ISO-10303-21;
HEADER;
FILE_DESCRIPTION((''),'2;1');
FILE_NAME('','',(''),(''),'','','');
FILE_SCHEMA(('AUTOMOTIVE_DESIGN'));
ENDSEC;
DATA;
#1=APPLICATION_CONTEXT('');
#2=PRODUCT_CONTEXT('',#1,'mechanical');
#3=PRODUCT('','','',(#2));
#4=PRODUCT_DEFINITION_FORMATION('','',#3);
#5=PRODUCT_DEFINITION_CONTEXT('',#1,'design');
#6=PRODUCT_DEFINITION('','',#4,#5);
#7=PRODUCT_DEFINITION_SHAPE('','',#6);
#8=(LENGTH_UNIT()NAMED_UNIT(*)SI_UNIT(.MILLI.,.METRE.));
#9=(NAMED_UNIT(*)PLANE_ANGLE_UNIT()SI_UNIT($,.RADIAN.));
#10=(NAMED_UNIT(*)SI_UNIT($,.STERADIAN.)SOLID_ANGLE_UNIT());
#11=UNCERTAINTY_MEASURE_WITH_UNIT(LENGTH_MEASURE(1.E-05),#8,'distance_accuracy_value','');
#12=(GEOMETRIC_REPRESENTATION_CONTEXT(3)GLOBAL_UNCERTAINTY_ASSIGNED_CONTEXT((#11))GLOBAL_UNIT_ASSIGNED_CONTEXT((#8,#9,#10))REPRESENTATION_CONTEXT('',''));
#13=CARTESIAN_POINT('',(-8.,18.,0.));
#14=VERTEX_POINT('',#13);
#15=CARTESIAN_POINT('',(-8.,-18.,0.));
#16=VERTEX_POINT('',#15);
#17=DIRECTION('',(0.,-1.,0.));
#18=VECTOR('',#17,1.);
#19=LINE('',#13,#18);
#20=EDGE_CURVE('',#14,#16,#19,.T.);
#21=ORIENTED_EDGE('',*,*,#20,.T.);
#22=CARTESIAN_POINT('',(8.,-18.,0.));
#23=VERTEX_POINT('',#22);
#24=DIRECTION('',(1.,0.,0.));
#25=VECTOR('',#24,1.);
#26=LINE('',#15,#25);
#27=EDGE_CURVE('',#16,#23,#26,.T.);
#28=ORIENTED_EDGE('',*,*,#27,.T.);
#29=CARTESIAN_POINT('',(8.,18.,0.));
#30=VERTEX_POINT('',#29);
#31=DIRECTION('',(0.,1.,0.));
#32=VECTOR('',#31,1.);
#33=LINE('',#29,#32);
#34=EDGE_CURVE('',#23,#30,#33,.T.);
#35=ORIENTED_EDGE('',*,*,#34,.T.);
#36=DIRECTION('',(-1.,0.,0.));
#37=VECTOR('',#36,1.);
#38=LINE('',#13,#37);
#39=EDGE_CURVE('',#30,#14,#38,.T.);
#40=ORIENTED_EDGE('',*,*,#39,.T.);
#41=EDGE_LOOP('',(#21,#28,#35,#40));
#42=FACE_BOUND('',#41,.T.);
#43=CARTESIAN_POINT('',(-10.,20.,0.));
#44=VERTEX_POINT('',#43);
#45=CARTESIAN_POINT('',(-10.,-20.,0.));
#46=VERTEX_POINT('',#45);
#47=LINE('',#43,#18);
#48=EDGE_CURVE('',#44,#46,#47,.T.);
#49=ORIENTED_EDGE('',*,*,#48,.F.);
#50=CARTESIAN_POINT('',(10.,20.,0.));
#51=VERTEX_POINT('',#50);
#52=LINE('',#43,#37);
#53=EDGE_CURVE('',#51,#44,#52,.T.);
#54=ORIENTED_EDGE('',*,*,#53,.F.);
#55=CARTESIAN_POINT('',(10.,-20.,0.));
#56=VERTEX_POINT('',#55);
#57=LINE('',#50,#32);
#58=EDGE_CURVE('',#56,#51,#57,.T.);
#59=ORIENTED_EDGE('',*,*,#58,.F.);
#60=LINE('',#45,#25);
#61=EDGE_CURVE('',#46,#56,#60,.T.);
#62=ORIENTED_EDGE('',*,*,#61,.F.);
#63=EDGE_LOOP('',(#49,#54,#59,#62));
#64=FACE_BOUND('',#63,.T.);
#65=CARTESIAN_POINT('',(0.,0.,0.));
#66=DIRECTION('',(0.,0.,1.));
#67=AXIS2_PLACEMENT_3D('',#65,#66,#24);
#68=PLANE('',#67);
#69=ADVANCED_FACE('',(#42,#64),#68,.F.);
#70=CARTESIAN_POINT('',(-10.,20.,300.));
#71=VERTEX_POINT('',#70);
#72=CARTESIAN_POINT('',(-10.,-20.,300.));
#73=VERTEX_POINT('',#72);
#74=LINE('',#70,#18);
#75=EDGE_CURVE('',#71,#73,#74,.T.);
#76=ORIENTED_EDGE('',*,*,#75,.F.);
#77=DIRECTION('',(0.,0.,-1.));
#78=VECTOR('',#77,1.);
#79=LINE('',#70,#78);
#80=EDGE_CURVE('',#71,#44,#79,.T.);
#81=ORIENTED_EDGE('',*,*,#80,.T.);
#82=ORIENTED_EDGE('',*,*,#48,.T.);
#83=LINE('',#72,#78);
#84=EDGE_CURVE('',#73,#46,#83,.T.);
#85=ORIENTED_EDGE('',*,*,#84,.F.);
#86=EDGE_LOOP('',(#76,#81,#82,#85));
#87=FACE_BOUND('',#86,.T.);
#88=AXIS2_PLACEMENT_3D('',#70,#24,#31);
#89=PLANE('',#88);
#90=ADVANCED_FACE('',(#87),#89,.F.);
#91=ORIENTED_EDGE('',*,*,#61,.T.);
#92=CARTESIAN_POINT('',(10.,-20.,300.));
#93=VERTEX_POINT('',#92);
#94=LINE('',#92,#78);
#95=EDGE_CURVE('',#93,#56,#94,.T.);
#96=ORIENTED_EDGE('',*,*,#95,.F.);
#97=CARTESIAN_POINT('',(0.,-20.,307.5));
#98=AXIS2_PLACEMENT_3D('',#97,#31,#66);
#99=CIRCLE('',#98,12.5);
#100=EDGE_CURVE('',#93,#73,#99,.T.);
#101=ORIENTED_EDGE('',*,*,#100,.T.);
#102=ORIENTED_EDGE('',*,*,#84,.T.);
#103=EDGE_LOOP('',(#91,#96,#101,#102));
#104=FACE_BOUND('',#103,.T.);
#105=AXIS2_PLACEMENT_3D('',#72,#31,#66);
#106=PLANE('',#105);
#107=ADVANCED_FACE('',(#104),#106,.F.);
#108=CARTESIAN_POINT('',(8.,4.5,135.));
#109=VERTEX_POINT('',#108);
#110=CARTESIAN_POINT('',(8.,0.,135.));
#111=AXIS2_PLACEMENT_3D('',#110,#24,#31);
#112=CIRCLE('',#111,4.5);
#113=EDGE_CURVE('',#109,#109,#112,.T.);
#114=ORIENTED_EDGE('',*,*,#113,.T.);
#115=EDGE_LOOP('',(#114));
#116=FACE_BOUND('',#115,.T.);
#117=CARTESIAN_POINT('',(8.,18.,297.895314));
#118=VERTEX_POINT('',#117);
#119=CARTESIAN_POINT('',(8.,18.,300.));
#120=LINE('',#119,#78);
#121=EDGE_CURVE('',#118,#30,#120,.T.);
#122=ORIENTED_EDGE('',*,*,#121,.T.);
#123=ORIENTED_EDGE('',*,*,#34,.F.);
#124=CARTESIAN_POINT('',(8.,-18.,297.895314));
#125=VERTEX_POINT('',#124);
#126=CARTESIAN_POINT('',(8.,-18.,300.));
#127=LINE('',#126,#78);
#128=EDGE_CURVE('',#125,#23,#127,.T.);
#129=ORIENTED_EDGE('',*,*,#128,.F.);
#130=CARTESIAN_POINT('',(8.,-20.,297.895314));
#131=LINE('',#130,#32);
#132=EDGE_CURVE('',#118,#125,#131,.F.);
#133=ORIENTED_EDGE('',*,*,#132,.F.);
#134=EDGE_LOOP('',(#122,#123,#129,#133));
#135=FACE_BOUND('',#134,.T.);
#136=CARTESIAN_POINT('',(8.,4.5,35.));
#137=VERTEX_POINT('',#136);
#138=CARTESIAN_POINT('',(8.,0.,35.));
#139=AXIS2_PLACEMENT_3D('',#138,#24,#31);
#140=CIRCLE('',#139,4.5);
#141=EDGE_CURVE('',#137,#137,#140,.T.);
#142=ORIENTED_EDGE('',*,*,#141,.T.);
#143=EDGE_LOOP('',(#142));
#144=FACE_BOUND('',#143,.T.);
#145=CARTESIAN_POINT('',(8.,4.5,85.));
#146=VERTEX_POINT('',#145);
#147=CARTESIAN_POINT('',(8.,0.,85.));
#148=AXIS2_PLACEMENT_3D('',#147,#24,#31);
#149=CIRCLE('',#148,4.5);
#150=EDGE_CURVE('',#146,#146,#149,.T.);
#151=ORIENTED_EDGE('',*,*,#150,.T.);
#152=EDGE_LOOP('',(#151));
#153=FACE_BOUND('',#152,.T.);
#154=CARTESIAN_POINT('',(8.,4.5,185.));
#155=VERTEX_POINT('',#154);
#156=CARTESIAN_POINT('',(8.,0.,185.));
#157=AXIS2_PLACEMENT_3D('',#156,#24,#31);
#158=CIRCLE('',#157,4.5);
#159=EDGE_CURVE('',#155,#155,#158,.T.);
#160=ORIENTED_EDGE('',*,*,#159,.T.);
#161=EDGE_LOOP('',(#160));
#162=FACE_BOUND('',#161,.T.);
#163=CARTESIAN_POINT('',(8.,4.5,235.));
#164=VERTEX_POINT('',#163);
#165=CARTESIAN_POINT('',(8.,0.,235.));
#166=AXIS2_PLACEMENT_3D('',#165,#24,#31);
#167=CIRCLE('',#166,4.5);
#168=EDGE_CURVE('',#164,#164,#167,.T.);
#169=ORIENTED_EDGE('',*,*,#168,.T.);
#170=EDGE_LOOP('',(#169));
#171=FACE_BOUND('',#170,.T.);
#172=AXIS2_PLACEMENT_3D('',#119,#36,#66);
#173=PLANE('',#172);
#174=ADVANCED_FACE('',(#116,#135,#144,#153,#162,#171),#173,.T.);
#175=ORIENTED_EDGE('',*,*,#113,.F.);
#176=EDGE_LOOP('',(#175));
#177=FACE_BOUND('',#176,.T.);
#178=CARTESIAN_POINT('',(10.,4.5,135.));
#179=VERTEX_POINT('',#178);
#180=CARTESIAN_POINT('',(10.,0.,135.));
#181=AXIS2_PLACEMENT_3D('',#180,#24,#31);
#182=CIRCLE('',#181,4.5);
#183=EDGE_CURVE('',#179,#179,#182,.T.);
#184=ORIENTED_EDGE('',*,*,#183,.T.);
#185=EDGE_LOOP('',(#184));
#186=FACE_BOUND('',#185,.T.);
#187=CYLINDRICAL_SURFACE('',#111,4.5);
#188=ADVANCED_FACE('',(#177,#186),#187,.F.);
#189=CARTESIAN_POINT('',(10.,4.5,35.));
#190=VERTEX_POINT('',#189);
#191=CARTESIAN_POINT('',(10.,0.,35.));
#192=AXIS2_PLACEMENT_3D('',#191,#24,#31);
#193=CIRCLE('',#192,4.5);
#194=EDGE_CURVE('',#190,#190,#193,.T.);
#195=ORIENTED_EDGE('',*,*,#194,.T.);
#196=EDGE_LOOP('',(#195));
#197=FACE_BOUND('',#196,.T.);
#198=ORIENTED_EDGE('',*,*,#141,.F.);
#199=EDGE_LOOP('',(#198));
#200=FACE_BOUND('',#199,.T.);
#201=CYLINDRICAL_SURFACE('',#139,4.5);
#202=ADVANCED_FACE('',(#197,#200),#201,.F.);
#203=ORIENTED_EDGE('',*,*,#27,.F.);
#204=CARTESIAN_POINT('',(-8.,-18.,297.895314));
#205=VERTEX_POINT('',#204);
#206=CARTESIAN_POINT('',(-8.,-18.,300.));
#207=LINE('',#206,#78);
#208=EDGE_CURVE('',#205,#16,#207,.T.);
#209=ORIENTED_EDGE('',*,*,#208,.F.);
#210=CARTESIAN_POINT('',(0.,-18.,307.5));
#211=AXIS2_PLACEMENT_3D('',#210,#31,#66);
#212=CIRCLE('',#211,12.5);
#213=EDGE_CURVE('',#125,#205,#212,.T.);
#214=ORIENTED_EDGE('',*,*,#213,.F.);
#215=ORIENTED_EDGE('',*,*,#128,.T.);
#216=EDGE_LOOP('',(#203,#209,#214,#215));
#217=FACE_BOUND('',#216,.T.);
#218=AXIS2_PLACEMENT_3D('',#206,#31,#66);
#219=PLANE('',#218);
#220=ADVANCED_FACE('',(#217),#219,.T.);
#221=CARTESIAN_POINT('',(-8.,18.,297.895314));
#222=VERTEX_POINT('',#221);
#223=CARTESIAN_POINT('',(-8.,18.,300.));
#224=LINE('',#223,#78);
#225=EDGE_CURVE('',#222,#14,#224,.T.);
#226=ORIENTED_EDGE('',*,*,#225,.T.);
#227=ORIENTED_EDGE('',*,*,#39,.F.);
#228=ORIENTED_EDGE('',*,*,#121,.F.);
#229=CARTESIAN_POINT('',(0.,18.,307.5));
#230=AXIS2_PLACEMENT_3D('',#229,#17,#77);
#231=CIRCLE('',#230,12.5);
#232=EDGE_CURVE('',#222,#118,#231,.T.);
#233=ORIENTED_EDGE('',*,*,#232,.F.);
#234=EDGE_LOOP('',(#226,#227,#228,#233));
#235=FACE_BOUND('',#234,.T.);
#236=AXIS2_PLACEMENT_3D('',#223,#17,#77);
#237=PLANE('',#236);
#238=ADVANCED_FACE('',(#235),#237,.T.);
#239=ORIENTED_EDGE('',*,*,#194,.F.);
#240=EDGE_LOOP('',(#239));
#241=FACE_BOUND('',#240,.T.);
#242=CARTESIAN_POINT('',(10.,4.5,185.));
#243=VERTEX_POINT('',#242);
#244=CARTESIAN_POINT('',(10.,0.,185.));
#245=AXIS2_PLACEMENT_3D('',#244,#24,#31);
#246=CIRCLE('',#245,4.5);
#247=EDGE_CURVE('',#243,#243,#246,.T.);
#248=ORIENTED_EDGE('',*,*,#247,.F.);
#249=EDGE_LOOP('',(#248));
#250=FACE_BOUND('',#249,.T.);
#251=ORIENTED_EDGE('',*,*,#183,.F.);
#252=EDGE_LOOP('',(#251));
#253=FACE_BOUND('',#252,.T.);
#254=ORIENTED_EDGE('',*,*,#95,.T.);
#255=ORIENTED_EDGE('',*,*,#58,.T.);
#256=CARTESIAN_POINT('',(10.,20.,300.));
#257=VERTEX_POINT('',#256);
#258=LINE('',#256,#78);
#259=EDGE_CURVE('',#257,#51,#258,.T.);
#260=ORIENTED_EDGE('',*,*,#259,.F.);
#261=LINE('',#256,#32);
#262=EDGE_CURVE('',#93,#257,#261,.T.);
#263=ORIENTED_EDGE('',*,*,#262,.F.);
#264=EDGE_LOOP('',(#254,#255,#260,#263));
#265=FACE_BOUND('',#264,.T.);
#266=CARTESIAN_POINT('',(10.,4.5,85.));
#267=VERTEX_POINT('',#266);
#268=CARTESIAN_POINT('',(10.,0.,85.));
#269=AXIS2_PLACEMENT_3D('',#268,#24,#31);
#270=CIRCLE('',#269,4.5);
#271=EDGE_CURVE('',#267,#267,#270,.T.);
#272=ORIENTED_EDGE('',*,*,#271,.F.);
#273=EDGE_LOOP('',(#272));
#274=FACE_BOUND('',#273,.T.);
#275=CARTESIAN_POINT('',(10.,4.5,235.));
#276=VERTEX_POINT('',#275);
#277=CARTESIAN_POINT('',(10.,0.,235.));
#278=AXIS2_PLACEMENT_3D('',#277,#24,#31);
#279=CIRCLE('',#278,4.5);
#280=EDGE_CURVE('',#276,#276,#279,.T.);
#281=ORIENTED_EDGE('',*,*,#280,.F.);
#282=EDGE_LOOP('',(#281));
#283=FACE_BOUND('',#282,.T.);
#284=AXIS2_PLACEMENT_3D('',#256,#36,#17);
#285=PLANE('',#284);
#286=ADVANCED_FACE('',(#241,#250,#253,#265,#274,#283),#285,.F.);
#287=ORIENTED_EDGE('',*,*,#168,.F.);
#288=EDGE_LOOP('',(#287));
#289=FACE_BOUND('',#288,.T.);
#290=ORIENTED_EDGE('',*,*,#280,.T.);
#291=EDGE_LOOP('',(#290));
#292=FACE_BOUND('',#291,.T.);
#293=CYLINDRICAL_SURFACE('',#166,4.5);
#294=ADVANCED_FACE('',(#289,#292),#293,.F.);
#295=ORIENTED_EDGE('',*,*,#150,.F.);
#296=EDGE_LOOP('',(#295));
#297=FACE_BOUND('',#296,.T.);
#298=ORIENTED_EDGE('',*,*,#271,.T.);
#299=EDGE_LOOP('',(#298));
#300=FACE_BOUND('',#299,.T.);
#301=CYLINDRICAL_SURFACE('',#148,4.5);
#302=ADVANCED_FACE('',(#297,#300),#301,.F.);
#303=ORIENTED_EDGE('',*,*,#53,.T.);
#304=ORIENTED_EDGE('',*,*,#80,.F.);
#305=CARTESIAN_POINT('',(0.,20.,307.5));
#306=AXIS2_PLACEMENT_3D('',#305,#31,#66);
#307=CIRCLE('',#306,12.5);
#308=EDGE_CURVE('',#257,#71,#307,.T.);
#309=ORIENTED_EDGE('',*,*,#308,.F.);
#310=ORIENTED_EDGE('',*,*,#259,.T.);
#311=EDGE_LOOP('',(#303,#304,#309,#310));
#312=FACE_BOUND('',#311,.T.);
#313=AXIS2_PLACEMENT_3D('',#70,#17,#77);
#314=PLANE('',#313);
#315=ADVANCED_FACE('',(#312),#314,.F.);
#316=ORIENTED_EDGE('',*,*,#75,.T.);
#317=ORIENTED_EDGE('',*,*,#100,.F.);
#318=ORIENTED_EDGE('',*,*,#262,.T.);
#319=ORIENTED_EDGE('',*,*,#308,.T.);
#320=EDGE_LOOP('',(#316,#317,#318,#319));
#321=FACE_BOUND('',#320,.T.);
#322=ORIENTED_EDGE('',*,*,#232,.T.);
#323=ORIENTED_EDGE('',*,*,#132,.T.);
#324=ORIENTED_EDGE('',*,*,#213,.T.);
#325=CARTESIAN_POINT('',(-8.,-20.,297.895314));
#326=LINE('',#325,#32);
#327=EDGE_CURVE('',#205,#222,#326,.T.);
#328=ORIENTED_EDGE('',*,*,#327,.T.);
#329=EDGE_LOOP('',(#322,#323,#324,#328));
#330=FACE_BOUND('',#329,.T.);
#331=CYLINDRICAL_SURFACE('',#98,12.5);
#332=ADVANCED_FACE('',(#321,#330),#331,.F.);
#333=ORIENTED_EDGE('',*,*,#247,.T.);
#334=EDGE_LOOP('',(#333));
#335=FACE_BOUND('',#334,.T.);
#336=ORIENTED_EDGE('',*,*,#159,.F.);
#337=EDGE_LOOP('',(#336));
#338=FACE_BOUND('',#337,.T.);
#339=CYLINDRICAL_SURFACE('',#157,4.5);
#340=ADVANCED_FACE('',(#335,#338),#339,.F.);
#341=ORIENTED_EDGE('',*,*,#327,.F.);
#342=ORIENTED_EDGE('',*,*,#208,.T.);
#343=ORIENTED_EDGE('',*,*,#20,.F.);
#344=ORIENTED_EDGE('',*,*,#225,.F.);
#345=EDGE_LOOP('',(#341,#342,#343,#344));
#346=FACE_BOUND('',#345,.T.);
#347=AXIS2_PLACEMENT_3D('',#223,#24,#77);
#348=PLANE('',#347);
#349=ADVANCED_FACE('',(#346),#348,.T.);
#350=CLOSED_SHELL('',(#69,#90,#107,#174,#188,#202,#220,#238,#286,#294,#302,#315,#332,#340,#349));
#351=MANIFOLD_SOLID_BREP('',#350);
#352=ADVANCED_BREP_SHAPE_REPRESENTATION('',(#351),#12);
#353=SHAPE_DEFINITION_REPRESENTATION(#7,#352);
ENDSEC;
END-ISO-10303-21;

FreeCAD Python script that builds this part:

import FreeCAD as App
import Part
import Sketcher


def add_polygon(sketch, points):
    """Adds a closed chain of lines whose ends are joined by coincident constraints."""
    first, n = sketch.GeometryCount, len(points)
    for a, b in zip(points, points[1:] + points[:1]):
        sketch.addGeometry(Part.LineSegment(App.Vector(*a, 0), App.Vector(*b, 0)), False)
    for i in range(n):
        sketch.addConstraint(Sketcher.Constraint("Coincident", first + i, 2, first + (i + 1) % n, 1))

doc = App.newDocument("Part")
body = doc.addObject("PartDesign::Body", "Body")

# Sketch on XY plane
sketch1 = body.newObject("Sketcher::SketchObject", "Sketch")
sketch1.AttachmentSupport = (doc.getObject("XY_Plane"), [""])
sketch1.MapMode = "FlatFace"
add_polygon(sketch1, [(-10, 20), (-10, -20), (10, -20), (10, 20)])  # lines 0-3
add_polygon(sketch1, [(8, -18), (-8, -18), (-8, 18), (8, 18)])  # lines 4-7
sketch1.addConstraint(Sketcher.Constraint("Vertical", 0))
sketch1.addConstraint(Sketcher.Constraint("Horizontal", 1))
sketch1.addConstraint(Sketcher.Constraint("Vertical", 2))
sketch1.addConstraint(Sketcher.Constraint("Horizontal", 3))
sketch1.addConstraint(Sketcher.Constraint("Horizontal", 4))
sketch1.addConstraint(Sketcher.Constraint("Vertical", 5))
sketch1.addConstraint(Sketcher.Constraint("Horizontal", 6))
sketch1.addConstraint(Sketcher.Constraint("Vertical", 7))
sketch1.addConstraint(Sketcher.Constraint("Symmetric", 0, 2, 2, 2, -1, 1))
sketch1.addConstraint(Sketcher.Constraint("Symmetric", 4, 2, 6, 2, -1, 1))
sketch1.addConstraint(Sketcher.Constraint("DistanceX", 1, 1, 1, 2, 20.0))
sketch1.addConstraint(Sketcher.Constraint("DistanceX", 4, 2, 4, 1, 16.0))
sketch1.addConstraint(Sketcher.Constraint("DistanceY", 0, 2, 0, 1, 40.0))
sketch1.addConstraint(Sketcher.Constraint("DistanceY", 5, 1, 5, 2, 36.0))
pad1 = body.newObject("PartDesign::Pad", "Pad")
pad1.Profile = sketch1
pad1.Length = 300

# Sketch on XZ plane
sketch2 = body.newObject("Sketcher::SketchObject", "Sketch001")
sketch2.AttachmentSupport = (doc.getObject("XZ_Plane"), [""])
sketch2.MapMode = "FlatFace"
sketch2.AttachmentOffset = App.Placement(App.Vector(0, 0, -20), App.Rotation())
sketch2.addGeometry(Part.Circle(App.Vector(0, 308, 0), App.Vector(0, 0, 1), 12), False)
sketch2.addConstraint(Sketcher.Constraint("PointOnObject", 0, 3, -2))
sketch2.addConstraint(Sketcher.Constraint("Diameter", 0, 25.0))
sketch2.addConstraint(Sketcher.Constraint("DistanceY", -1, 1, 0, 3, 307.5))
pocket1 = body.newObject("PartDesign::Pocket", "Pocket")
pocket1.Profile = sketch2
pocket1.Length = 40
pocket1.Reversed = True

# Sketch on YZ plane
sketch3 = body.newObject("Sketcher::SketchObject", "Sketch002")
sketch3.AttachmentSupport = (doc.getObject("YZ_Plane"), [""])
sketch3.MapMode = "FlatFace"
sketch3.AttachmentOffset = App.Placement(App.Vector(0, 0, 10), App.Rotation())
sketch3.addGeometry(Part.Circle(App.Vector(0, 35, 0), App.Vector(0, 0, 1), 4.5), False)
sketch3.addGeometry(Part.Circle(App.Vector(0, 85, 0), App.Vector(0, 0, 1), 4.5), False)
sketch3.addGeometry(Part.Circle(App.Vector(0, 135, 0), App.Vector(0, 0, 1), 4.5), False)
sketch3.addGeometry(Part.Circle(App.Vector(0, 185, 0), App.Vector(0, 0, 1), 4.5), False)
sketch3.addGeometry(Part.Circle(App.Vector(0, 235, 0), App.Vector(0, 0, 1), 4.5), False)
sketch3.addConstraint(Sketcher.Constraint("Equal", 0, 1))
sketch3.addConstraint(Sketcher.Constraint("Equal", 1, 2))
sketch3.addConstraint(Sketcher.Constraint("Equal", 2, 3))
sketch3.addConstraint(Sketcher.Constraint("Equal", 3, 4))
sketch3.addConstraint(Sketcher.Constraint("PointOnObject", 0, 3, -2))
sketch3.addConstraint(Sketcher.Constraint("PointOnObject", 1, 3, -2))
sketch3.addConstraint(Sketcher.Constraint("PointOnObject", 2, 3, -2))
sketch3.addConstraint(Sketcher.Constraint("PointOnObject", 3, 3, -2))
sketch3.addConstraint(Sketcher.Constraint("PointOnObject", 4, 3, -2))
sketch3.addConstraint(Sketcher.Constraint("Diameter", 0, 9.0))
sketch3.addConstraint(Sketcher.Constraint("DistanceY", -1, 1, 0, 3, 35.0))
sketch3.addConstraint(Sketcher.Constraint("DistanceY", -1, 1, 1, 3, 85.0))
sketch3.addConstraint(Sketcher.Constraint("DistanceY", -1, 1, 2, 3, 135.0))
sketch3.addConstraint(Sketcher.Constraint("DistanceY", -1, 1, 3, 3, 185.0))
sketch3.addConstraint(Sketcher.Constraint("DistanceY", -1, 1, 4, 3, 235.0))
pocket2 = body.newObject("PartDesign::Pocket", "Pocket001")
pocket2.Profile = sketch3
pocket2.Length = 2

doc.recompute()
